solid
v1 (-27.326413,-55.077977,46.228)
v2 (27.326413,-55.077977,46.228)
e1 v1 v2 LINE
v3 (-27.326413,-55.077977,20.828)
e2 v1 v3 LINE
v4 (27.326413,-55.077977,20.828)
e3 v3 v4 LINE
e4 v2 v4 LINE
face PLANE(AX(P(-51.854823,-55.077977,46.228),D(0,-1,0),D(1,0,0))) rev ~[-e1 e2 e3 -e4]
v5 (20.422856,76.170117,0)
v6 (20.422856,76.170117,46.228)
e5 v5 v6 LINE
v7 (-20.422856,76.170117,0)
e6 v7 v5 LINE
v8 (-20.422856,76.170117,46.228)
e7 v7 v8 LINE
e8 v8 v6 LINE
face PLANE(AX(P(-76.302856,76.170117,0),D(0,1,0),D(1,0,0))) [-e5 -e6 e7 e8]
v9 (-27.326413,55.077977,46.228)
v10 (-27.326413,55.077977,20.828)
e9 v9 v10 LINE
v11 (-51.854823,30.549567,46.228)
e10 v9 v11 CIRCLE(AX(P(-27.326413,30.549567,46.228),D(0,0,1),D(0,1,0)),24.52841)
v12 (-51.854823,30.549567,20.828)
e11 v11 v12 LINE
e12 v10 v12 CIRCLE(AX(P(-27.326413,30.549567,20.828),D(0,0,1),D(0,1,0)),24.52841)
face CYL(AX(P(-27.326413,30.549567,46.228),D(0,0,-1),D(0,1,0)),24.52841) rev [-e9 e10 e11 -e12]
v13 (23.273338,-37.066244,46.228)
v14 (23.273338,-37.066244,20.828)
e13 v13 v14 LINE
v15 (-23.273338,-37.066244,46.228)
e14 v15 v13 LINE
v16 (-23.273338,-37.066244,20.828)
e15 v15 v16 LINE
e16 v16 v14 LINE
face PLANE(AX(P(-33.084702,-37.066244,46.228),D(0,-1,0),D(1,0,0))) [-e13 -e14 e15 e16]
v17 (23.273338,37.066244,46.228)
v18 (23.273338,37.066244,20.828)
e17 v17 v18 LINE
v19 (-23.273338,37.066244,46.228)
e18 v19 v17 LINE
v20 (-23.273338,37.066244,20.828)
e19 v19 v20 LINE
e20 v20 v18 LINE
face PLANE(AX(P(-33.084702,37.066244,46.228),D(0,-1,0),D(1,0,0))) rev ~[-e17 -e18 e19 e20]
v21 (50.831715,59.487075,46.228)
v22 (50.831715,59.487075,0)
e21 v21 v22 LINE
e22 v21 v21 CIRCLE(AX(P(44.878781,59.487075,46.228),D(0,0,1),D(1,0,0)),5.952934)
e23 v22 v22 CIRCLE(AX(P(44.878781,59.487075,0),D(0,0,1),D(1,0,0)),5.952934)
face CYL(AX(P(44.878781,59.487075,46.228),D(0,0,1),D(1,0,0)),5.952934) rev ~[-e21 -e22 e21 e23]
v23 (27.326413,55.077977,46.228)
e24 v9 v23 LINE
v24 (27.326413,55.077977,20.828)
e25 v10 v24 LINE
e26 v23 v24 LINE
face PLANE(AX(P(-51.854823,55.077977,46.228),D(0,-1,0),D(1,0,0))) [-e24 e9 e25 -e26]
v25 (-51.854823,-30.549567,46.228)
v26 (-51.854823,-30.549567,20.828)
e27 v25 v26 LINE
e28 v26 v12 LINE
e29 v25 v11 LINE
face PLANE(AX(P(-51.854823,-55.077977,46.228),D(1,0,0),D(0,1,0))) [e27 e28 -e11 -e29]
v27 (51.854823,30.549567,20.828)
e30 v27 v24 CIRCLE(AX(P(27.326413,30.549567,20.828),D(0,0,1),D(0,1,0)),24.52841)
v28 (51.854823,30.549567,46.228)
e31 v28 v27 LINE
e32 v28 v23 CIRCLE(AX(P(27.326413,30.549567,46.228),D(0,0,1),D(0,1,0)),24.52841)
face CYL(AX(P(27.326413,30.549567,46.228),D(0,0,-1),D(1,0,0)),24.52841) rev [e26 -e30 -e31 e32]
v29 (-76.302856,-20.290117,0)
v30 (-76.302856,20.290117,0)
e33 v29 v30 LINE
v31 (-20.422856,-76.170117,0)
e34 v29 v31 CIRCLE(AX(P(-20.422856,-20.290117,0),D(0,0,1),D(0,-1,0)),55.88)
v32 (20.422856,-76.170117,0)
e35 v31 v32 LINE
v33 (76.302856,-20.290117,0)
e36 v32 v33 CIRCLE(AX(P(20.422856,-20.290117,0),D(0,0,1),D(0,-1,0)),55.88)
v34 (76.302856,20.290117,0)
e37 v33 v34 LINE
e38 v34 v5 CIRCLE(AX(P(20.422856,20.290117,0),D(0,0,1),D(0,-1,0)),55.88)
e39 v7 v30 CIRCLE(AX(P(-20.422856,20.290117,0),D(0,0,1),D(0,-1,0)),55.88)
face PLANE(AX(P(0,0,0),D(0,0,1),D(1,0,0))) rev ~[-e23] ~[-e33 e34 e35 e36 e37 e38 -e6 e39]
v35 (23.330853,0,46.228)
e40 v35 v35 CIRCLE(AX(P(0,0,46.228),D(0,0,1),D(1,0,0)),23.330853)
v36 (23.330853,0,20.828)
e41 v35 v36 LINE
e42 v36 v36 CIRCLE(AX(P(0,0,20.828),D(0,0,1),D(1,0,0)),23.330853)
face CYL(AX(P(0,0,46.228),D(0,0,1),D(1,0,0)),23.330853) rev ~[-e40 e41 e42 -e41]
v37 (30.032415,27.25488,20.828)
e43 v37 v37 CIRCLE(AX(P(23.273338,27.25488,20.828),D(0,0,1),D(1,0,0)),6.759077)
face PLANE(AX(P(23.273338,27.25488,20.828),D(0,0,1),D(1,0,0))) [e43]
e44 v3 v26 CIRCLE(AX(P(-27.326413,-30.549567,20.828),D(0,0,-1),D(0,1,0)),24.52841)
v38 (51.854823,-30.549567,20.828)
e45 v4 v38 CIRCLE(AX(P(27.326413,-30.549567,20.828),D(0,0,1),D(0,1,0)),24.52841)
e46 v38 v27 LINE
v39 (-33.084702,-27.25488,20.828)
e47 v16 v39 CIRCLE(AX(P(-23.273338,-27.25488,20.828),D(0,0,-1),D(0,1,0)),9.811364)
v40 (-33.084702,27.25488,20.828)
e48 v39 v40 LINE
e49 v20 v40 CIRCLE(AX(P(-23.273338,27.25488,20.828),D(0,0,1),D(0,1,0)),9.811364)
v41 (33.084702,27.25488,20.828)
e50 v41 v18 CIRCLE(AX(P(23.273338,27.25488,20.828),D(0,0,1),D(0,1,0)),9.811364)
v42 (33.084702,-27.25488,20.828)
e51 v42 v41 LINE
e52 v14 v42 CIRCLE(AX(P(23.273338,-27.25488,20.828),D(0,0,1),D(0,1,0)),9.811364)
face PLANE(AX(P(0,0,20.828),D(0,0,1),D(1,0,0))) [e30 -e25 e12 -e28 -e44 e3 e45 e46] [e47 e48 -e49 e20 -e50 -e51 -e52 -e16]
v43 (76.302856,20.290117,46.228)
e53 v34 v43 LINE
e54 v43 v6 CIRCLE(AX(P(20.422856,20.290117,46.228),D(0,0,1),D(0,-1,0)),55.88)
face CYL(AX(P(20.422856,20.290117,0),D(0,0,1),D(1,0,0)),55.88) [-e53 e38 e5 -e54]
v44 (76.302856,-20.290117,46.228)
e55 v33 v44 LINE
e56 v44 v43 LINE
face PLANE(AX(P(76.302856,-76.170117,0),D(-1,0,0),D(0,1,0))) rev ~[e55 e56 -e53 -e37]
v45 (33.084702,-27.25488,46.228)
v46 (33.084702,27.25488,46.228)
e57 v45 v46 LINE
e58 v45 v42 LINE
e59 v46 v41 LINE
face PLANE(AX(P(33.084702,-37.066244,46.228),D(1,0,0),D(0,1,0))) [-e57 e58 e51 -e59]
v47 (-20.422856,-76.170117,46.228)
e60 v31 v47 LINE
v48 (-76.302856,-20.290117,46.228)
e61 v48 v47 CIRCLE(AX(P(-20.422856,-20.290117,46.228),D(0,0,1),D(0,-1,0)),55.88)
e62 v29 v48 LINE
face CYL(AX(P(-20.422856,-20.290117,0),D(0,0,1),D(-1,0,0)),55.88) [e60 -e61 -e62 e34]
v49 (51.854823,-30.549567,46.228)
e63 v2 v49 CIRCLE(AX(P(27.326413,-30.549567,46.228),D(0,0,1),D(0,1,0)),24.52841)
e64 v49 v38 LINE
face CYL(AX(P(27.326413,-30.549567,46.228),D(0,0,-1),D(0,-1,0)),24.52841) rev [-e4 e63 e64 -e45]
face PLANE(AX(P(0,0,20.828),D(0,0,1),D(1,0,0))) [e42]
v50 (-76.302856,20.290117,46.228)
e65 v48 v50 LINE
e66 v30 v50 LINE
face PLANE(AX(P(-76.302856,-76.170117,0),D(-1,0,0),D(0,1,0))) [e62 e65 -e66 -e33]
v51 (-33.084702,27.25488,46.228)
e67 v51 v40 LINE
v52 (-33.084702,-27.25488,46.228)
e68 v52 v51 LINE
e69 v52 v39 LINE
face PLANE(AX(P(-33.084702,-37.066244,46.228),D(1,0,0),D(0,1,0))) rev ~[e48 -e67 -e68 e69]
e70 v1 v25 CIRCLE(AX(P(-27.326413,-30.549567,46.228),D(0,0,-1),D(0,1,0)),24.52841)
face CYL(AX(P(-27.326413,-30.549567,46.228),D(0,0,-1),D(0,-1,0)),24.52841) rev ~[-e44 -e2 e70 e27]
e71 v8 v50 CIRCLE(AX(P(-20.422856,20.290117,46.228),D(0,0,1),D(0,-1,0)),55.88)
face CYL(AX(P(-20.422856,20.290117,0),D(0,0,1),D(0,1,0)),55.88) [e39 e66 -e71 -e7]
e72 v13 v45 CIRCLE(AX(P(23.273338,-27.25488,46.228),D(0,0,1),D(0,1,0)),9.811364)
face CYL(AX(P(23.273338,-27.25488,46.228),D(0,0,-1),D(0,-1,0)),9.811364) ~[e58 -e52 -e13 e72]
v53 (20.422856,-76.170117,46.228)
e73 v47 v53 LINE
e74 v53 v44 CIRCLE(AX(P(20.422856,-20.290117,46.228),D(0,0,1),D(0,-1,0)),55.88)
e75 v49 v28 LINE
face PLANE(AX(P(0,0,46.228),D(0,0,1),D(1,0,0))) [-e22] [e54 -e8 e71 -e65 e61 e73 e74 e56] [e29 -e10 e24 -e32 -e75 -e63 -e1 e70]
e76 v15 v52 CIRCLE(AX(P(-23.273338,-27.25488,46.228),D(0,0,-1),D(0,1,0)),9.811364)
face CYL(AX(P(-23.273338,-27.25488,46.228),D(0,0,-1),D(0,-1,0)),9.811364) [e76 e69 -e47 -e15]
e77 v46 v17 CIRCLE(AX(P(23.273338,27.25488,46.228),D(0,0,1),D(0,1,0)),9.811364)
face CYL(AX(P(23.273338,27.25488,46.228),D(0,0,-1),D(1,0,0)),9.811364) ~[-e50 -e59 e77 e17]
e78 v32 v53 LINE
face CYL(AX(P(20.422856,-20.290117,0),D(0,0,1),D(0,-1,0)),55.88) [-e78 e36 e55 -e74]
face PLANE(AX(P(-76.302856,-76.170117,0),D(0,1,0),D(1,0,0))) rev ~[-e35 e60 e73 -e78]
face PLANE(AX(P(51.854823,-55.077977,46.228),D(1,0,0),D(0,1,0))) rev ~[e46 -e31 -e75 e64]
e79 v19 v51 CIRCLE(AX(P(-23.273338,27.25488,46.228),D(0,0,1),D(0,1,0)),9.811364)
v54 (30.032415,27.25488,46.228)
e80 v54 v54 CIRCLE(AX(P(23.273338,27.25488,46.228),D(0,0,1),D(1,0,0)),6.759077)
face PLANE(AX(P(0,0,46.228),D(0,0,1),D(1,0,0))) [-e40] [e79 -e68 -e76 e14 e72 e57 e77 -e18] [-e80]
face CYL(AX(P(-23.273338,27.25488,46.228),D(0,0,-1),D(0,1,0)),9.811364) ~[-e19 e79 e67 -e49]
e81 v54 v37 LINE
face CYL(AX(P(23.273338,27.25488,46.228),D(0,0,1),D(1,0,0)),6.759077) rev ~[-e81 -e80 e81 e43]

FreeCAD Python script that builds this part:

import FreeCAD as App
import Part
import Sketcher
from FreeCAD import Vector
Q = App.Units.Quantity


def edges_at(feature, points):
    """Names of the edges that pass closest to the given points."""
    edges = feature.Shape.Edges
    near = lambda p: min(range(len(edges)), key=lambda i: edges[i].distToShape(Part.Vertex(*p))[0])
    return sorted({f"Edge{near(p) + 1}" for p in points})

doc = App.newDocument("Part")
body = doc.addObject("PartDesign::Body", "Body")

# Sketch on XY plane
sketch1 = body.newObject("Sketcher::SketchObject", "Sketch")
sketch1.AttachmentSupport = (doc.getObject("XY_Plane"), [""])
sketch1.MapMode = "FlatFace"
sketch1.addGeometry([
    Part.LineSegment(Vector(-76, 76, 0), Vector(-76, -76, 0)),
    Part.LineSegment(Vector(-76, -76, 0), Vector(76, -76, 0)),
    Part.LineSegment(Vector(76, -76, 0), Vector(76, 76, 0)),
    Part.LineSegment(Vector(76, 76, 0), Vector(-76, 76, 0)),
], False)
sketch1.addConstraint([
    Sketcher.Constraint("Coincident", 0, 2, 1, 1),
    Sketcher.Constraint("Coincident", 1, 2, 2, 1),
    Sketcher.Constraint("Coincident", 2, 2, 3, 1),
    Sketcher.Constraint("Coincident", 3, 2, 0, 1),
    Sketcher.Constraint("Vertical", 0),
    Sketcher.Constraint("Horizontal", 1),
    Sketcher.Constraint("Vertical", 2),
    Sketcher.Constraint("Horizontal", 3),
    Sketcher.Constraint("Symmetric", 0, 2, 2, 2, -1, 1),
    Sketcher.Constraint("DistanceX", 1, 1, 1, 2, Q("152.605712 mm")),
    Sketcher.Constraint("DistanceY", 0, 2, 0, 1, Q("152.340234 mm")),
])
pad1 = body.newObject("PartDesign::Pad", "Pad")
pad1.Profile = sketch1
pad1.Length = Q("1.82 in")
doc.recompute()

fillet = body.newObject("PartDesign::Fillet", "Fillet")
fillet.Base = (pad1, edges_at(pad1, [(76.303, 76.17, 23.114)]))
fillet.Radius = Q("2.2 in")
doc.recompute()

fillet2 = body.newObject("PartDesign::Fillet", "Fillet001")
fillet2.Base = (fillet, edges_at(fillet, [(-76.303, 76.17, 23.114)]))
fillet2.Radius = Q("2.2 in")
doc.recompute()

fillet3 = body.newObject("PartDesign::Fillet", "Fillet002")
fillet3.Base = (fillet2, edges_at(fillet2, [(-76.303, -76.17, 23.114)]))
fillet3.Radius = Q("2.2 in")
doc.recompute()

fillet4 = body.newObject("PartDesign::Fillet", "Fillet003")
fillet4.Base = (fillet3, edges_at(fillet3, [(76.303, -76.17, 23.114)]))
fillet4.Radius = Q("2.2 in")

# Sketch on XY plane
sketch2 = body.newObject("Sketcher::SketchObject", "Sketch001")
sketch2.AttachmentSupport = (doc.getObject("XY_Plane"), [""])
sketch2.MapMode = "FlatFace"
sketch2.AttachmentOffset = App.Placement(Vector(0, 0, 1.82 * 25.4), App.Rotation())
sketch2.addGeometry([
    Part.LineSegment(Vector(-52, 55, 0), Vector(-52, -55, 0)),  # 0
    Part.LineSegment(Vector(-52, -55, 0), Vector(52, -55, 0)),  # 1
    Part.LineSegment(Vector(52, -55, 0), Vector(52, 55, 0)),  # 2
    Part.LineSegment(Vector(52, 55, 0), Vector(-52, 55, 0)),  # 3
    Part.LineSegment(Vector(33, -37, 0), Vector(-33, -37, 0)),  # 4
    Part.LineSegment(Vector(-33, -37, 0), Vector(-33, 37, 0)),  # 5
    Part.LineSegment(Vector(-33, 37, 0), Vector(33, 37, 0)),  # 6
    Part.LineSegment(Vector(33, 37, 0), Vector(33, -37, 0)),  # 7
], False)
sketch2.addConstraint([
    Sketcher.Constraint("Coincident", 0, 2, 1, 1),
    Sketcher.Constraint("Coincident", 1, 2, 2, 1),
    Sketcher.Constraint("Coincident", 2, 2, 3, 1),
    Sketcher.Constraint("Coincident", 3, 2, 0, 1),
    Sketcher.Constraint("Coincident", 4, 2, 5, 1),
    Sketcher.Constraint("Coincident", 5, 2, 6, 1),
    Sketcher.Constraint("Coincident", 6, 2, 7, 1),
    Sketcher.Constraint("Coincident", 7, 2, 4, 1),
    Sketcher.Constraint("Vertical", 0),
    Sketcher.Constraint("Horizontal", 1),
    Sketcher.Constraint("Vertical", 2),
    Sketcher.Constraint("Horizontal", 3),
    Sketcher.Constraint("Horizontal", 4),
    Sketcher.Constraint("Vertical", 5),
    Sketcher.Constraint("Horizontal", 6),
    Sketcher.Constraint("Vertical", 7),
    Sketcher.Constraint("Symmetric", 0, 2, 2, 2, -1, 1),
    Sketcher.Constraint("Symmetric", 4, 2, 6, 2, -1, 1),
    Sketcher.Constraint("DistanceX", 1, 1, 1, 2, Q("103.709646 mm")),
    Sketcher.Constraint("DistanceX", 4, 2, 4, 1, Q("66.169404 mm")),
    Sketcher.Constraint("DistanceY", 0, 2, 0, 1, Q("110.155954 mm")),
    Sketcher.Constraint("DistanceY", 5, 1, 5, 2, Q("74.132488 mm")),
])
pocket1 = body.newObject("PartDesign::Pocket", "Pocket")
pocket1.Profile = sketch2
pocket1.Length = Q("1 in")
doc.recompute()

fillet5 = body.newObject("PartDesign::Fillet", "Fillet004")
fillet5.Base = (pocket1, edges_at(pocket1, [
    (-51.855, -55.078, 33.528),
    (51.855, -55.078, 33.528),
    (51.855, 55.078, 33.528),
    (-51.855, 55.078, 33.528),
]))
fillet5.Radius = 24.52841
doc.recompute()

fillet6 = body.newObject("PartDesign::Fillet", "Fillet005")
fillet6.Base = (fillet5, edges_at(fillet5, [
    (-33.085, -37.066, 33.528),
    (-33.085, 37.066, 33.528),
    (33.085, 37.066, 33.528),
    (33.085, -37.066, 33.528),
]))
fillet6.Radius = 9.811364

# Sketch on XY plane
sketch3 = body.newObject("Sketcher::SketchObject", "Sketch002")
sketch3.AttachmentSupport = (doc.getObject("XY_Plane"), [""])
sketch3.MapMode = "FlatFace"
sketch3.AttachmentOffset = App.Placement(Vector(0, 0, 1.82 * 25.4), App.Rotation())
sketch3.addGeometry(Part.Circle(Vector(0, 0, 0), Vector(0, 0, 1), 23), False)
sketch3.addConstraint([
    Sketcher.Constraint("Coincident", 0, 3, -1, 1),
    Sketcher.Constraint("Diameter", 0, Q("46.661706 mm")),
])
pocket2 = body.newObject("PartDesign::Pocket", "Pocket001")
pocket2.Profile = sketch3
pocket2.Length = Q("1 in")

# Sketch on XY plane
sketch4 = body.newObject("Sketcher::SketchObject", "Sketch003")
sketch4.AttachmentSupport = (doc.getObject("XY_Plane"), [""])
sketch4.MapMode = "FlatFace"
sketch4.AttachmentOffset = App.Placement(Vector(0, 0, 1.82 * 25.4), App.Rotation())
sketch4.addGeometry(Part.Circle(Vector(23, 27, 0), Vector(0, 0, 1), 7), False)
sketch4.addConstraint([
    Sketcher.Constraint("Diameter", 0, Q("13.518154 mm")),
    Sketcher.Constraint("DistanceY", -1, 1, 0, 3, Q("27.25488 mm")),
    Sketcher.Constraint("DistanceX", -1, 1, 0, 3, Q("23.273338 mm")),
])
pocket3 = body.newObject("PartDesign::Pocket", "Pocket002")
pocket3.Profile = sketch4
pocket3.Length = Q("1 in")

# Sketch on XY plane
sketch5 = body.newObject("Sketcher::SketchObject", "Sketch004")
sketch5.AttachmentSupport = (doc.getObject("XY_Plane"), [""])
sketch5.MapMode = "FlatFace"
sketch5.AttachmentOffset = App.Placement(Vector(0, 0, 1.82 * 25.4), App.Rotation())
sketch5.addGeometry(Part.Circle(Vector(45, 59, 0), Vector(0, 0, 1), 6), False)
sketch5.addConstraint([
    Sketcher.Constraint("Diameter", 0, Q("11.905868 mm")),
    Sketcher.Constraint("DistanceX", -1, 1, 0, 3, Q("44.878781 mm")),
    Sketcher.Constraint("DistanceY", -1, 1, 0, 3, Q("59.487075 mm")),
])
pocket4 = body.newObject("PartDesign::Pocket", "Pocket003")
pocket4.Profile = sketch5
pocket4.Length = Q("2.46 in")

doc.recompute()
